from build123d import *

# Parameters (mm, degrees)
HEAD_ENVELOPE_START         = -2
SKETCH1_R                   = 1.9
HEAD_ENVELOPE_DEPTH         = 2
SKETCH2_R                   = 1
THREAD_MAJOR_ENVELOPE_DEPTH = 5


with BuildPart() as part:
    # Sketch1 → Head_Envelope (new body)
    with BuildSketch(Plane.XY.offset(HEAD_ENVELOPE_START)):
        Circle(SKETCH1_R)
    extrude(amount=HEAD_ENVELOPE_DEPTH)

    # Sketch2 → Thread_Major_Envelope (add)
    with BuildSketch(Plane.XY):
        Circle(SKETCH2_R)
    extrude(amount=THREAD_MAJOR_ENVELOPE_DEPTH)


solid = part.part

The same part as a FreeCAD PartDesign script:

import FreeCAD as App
import Part
import Sketcher

V = App.Vector
Q = App.Units.Quantity

doc = App.newDocument("Part")
params = doc.addObject("Spreadsheet::Sheet", "Params")
for row, (alias, value) in enumerate([
    ("sketch1_diameter", "3.8 mm"),
    ("pad1_length", "2 mm"),
    ("sketch2_diameter", "2 mm"),
    ("pad2_length", "5 mm"),
], start=1):
    params.set(f"A{row}", alias)
    params.set(f"B{row}", "=" + value)
    params.setAlias(f"B{row}", alias)

body = doc.addObject("PartDesign::Body", "Body")

# Sketch on XY plane
sketch1 = doc.addObject("Sketcher::SketchObject", "Sketch")
body.addObject(sketch1)
sketch1.AttachmentSupport = (doc.XY_Plane, [""])
sketch1.MapMode = "FlatFace"
sketch1.AttachmentOffset = App.Placement(V(0, 0, -2), App.Rotation())
sketch1.addGeometry(Part.Circle(V(0, 0, 0), V(0, 0, 1), 1.9), False)
sketch1.addConstraint(Sketcher.Constraint("Coincident", 0, 3, -1, 1))
sketch1.addConstraint(Sketcher.Constraint("Diameter", 0, Q("3.8 mm")))
sketch1.setExpression("Constraints[1]", "Params.sketch1_diameter")
pad1 = doc.addObject("PartDesign::Pad", "Pad")
body.addObject(pad1)
pad1.Profile = sketch1
pad1.setExpression("Length", "Params.pad1_length")

# Sketch on XY plane
sketch2 = doc.addObject("Sketcher::SketchObject", "Sketch001")
body.addObject(sketch2)
sketch2.AttachmentSupport = (doc.XY_Plane, [""])
sketch2.MapMode = "FlatFace"
sketch2.addGeometry(Part.Circle(V(0, 0, 0), V(0, 0, 1), 1), False)
sketch2.addConstraint(Sketcher.Constraint("Coincident", 0, 3, -1, 1))
sketch2.addConstraint(Sketcher.Constraint("Diameter", 0, Q("2 mm")))
sketch2.setExpression("Constraints[1]", "Params.sketch2_diameter")
pad2 = doc.addObject("PartDesign::Pad", "Pad001")
body.addObject(pad2)
pad2.Profile = sketch2
pad2.setExpression("Length", "Params.pad2_length")

doc.recompute()
